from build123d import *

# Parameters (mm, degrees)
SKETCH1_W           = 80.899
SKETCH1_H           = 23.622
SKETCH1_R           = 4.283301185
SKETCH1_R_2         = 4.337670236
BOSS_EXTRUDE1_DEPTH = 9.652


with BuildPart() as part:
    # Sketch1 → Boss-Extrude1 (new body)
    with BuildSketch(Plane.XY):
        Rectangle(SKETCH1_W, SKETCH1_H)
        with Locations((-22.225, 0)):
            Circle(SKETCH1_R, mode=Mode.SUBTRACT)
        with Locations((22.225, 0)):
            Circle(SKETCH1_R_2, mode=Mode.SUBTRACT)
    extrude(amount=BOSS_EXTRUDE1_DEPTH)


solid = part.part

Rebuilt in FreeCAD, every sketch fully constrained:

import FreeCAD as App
import Part
import Sketcher

V = App.Vector
Q = App.Units.Quantity


def add_polygon(sketch, points):
    """Adds a closed chain of lines whose ends are joined by coincident constraints."""
    first, n = sketch.GeometryCount, len(points)
    for a, b in zip(points, points[1:] + points[:1]):
        sketch.addGeometry(Part.LineSegment(App.Vector(*a, 0), App.Vector(*b, 0)), False)
    for i in range(n):
        sketch.addConstraint(Sketcher.Constraint("Coincident", first + i, 2, first + (i + 1) % n, 1))

doc = App.newDocument("Part")
body = doc.addObject("PartDesign::Body", "Body")

sketch1 = body.newObject("Sketcher::SketchObject", "Sketch")
sketch1.AttachmentSupport = (doc.getObject("XY_Plane"), [""])
sketch1.MapMode = "FlatFace"
add_polygon(sketch1, [(-40.4, 11.8), (-40.4, -11.8), (40.4, -11.8), (40.4, 11.8)])
sketch1.addGeometry(Part.Circle(V(-22.2, 0, 0), V(0, 0, 1), 4.3), False)
sketch1.addGeometry(Part.Circle(V(22.2, 0, 0), V(0, 0, 1), 4.3), False)
sketch1.addConstraint([
    Sketcher.Constraint("Vertical", 0),
    Sketcher.Constraint("Horizontal", 1),
    Sketcher.Constraint("Vertical", 2),
    Sketcher.Constraint("Horizontal", 3),
    Sketcher.Constraint("Symmetric", 4, 3, 5, 3, -1, 1),
    Sketcher.Constraint("Symmetric", 0, 2, 2, 2, -1, 1),
    Sketcher.Constraint("PointOnObject", 4, 3, -1),
    Sketcher.Constraint("DistanceY", 0, 2, 0, 1, Q("0.93 in")),
    Sketcher.Constraint("DistanceX", 1, 1, 1, 2, Q("3.185 in")),
    Sketcher.Constraint("DistanceX", 4, 3, 5, 3, Q("1.75 in")),
    Sketcher.Constraint("Diameter", 5, 8.67534),
    Sketcher.Constraint("Diameter", 4, 8.566602),
])
pad1 = body.newObject("PartDesign::Pad", "Pad")
pad1.Profile = sketch1
pad1.Length = Q("0.38 in")

doc.recompute()
